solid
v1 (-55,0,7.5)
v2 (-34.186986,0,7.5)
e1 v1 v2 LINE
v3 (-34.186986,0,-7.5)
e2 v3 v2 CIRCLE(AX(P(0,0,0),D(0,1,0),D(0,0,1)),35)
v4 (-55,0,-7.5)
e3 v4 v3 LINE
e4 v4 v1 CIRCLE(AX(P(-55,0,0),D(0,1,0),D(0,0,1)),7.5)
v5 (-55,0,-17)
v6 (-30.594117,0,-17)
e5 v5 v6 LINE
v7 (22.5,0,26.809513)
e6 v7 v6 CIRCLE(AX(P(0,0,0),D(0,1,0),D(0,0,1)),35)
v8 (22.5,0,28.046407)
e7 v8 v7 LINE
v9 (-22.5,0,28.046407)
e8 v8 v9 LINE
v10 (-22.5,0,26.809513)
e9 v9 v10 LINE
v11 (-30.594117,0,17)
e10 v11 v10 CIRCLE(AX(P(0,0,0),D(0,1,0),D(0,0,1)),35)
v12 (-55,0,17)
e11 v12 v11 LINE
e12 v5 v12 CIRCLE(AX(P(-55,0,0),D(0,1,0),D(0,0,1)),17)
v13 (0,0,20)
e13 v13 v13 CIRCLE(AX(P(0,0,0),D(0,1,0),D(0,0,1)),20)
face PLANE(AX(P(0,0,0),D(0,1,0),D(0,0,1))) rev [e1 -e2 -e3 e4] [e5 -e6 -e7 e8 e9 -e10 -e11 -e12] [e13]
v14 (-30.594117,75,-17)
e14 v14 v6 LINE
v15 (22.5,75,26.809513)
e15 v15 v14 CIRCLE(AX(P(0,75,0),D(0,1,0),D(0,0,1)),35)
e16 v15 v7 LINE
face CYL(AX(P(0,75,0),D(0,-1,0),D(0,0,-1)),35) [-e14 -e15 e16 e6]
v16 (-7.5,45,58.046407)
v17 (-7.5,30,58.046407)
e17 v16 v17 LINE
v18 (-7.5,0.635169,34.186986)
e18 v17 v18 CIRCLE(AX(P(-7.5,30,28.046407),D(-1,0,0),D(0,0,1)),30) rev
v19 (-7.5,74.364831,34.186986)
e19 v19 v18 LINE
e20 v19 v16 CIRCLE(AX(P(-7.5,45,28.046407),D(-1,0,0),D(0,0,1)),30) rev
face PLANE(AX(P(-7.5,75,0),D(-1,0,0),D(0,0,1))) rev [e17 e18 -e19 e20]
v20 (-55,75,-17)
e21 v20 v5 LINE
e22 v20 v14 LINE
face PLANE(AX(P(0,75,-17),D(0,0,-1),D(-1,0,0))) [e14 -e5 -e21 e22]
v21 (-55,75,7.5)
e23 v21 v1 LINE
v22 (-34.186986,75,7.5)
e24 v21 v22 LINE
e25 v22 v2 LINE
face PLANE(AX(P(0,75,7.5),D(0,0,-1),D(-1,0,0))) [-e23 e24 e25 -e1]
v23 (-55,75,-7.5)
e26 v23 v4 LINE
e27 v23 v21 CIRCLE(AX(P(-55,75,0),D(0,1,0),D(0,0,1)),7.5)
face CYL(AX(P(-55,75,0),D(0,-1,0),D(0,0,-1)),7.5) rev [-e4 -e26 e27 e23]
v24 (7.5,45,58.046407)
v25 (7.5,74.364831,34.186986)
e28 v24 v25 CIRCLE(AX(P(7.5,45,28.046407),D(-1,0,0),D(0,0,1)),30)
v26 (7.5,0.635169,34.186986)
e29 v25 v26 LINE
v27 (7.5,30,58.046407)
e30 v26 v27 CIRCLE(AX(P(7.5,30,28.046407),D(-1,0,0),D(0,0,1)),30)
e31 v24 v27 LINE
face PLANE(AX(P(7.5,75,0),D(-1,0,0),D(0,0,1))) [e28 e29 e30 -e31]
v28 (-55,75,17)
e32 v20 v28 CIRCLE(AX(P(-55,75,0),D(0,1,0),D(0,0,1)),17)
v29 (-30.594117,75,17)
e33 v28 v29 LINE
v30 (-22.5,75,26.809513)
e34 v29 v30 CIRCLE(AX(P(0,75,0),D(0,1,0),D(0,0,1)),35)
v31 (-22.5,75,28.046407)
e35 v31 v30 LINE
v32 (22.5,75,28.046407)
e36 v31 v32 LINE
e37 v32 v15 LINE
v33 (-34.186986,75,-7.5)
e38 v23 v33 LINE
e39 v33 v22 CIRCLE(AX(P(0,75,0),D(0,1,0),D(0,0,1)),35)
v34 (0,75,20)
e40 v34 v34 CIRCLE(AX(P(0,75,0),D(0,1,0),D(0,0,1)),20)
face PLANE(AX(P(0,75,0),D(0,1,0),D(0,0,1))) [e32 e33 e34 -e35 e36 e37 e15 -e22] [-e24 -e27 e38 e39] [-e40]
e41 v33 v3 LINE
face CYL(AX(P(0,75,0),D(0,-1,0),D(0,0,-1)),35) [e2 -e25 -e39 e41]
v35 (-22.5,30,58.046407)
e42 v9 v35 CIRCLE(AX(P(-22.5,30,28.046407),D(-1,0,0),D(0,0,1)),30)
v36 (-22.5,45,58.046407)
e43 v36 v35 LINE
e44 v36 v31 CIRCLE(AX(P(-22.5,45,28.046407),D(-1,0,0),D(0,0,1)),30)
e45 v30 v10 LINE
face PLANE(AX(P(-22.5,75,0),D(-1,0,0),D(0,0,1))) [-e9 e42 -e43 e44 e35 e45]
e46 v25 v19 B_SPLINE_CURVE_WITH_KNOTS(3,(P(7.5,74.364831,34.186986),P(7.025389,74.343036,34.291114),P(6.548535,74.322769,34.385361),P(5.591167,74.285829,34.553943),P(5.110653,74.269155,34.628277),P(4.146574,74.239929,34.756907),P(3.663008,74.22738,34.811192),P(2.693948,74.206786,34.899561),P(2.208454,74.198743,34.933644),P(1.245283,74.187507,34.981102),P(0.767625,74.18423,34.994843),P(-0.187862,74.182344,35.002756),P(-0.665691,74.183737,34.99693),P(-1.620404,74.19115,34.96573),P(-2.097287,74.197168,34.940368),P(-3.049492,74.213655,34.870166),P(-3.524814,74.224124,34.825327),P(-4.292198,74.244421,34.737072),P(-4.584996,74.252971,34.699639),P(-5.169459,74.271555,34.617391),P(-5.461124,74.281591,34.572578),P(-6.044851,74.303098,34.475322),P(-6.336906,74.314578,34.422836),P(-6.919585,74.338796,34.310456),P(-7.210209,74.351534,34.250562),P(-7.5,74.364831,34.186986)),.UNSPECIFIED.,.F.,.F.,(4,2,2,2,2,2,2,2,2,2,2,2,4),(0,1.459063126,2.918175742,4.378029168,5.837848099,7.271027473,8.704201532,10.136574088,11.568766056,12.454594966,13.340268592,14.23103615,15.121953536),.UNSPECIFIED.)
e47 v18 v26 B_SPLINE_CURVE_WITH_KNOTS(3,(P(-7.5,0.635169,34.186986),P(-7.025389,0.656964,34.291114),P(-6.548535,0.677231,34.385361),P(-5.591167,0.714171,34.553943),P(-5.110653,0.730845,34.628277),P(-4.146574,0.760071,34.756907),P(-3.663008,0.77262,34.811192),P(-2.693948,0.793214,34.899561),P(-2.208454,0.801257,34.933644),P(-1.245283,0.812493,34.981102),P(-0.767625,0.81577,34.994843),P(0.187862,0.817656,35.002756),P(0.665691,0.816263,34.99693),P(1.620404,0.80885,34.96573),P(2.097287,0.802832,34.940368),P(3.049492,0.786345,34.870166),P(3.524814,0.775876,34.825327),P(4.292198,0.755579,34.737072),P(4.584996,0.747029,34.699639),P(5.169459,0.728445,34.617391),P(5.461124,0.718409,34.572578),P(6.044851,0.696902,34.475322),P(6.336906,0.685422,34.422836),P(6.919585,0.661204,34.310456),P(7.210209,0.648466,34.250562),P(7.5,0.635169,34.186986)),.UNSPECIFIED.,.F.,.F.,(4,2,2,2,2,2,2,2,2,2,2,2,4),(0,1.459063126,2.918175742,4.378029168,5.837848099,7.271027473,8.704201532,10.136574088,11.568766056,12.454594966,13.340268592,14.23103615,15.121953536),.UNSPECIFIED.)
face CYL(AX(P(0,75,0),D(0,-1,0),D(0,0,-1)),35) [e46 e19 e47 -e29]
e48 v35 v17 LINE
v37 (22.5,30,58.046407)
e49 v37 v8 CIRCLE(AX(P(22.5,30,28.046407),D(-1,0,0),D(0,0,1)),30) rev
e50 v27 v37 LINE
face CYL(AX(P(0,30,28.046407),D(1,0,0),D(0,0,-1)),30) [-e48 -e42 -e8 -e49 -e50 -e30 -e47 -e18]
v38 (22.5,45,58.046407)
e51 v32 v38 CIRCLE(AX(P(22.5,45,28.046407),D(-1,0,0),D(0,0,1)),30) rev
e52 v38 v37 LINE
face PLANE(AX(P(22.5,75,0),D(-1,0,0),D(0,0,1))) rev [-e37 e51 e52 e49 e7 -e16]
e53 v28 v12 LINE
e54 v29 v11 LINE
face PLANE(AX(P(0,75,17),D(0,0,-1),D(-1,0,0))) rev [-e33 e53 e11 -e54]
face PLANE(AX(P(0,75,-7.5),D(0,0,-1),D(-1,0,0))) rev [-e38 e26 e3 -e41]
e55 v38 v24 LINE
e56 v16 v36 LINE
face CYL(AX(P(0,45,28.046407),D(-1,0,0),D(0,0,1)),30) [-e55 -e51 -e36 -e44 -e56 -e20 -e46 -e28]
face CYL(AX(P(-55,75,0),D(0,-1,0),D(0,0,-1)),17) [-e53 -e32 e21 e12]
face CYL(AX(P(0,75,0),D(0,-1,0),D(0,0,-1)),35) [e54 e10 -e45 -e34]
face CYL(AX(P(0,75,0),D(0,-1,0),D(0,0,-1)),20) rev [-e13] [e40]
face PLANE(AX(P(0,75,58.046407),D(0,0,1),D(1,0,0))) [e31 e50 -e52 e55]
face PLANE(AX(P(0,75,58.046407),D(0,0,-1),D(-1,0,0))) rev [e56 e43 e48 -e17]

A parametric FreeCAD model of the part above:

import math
import FreeCAD as App
import Part
import Sketcher
from FreeCAD import Vector
Q = App.Units.Quantity


def edges_at(feature, points):
    """Names of the edges that pass closest to the given points."""
    edges = feature.Shape.Edges
    near = lambda p: min(range(len(edges)), key=lambda i: edges[i].distToShape(Part.Vertex(*p))[0])
    return sorted({f"Edge{near(p) + 1}" for p in points})

doc = App.newDocument("Part")
body = doc.addObject("PartDesign::Body", "Body")

# Sketch on XZ plane
sketch1 = body.newObject("Sketcher::SketchObject", "Sketch")
sketch1.AttachmentSupport = (doc.getObject("XZ_Plane"), [""])
sketch1.MapMode = "FlatFace"
sketch1.addGeometry([
    Part.LineSegment(Vector(-22, 27, 0), Vector(-22, 58, 0)),  # 0
    Part.LineSegment(Vector(-22, 58, 0), Vector(-8, 58, 0)),  # 1
    Part.LineSegment(Vector(-8, 58, 0), Vector(-8, 34, 0)),  # 2
    Part.ArcOfCircle(Part.Circle(Vector(0, 0, 0), Vector(0, 0, 1), 35), math.radians(78), math.radians(102)),  # 3
    Part.LineSegment(Vector(8, 34, 0), Vector(8, 58, 0)),  # 4
    Part.LineSegment(Vector(8, 58, 0), Vector(22, 58, 0)),  # 5
    Part.LineSegment(Vector(22, 58, 0), Vector(22, 27, 0)),  # 6
    Part.ArcOfCircle(Part.Circle(Vector(0, 0, 0), Vector(0, 0, 1), 35), math.radians(-151), math.radians(50)),  # 7
    Part.LineSegment(Vector(-31, -17, 0), Vector(-55, -17, 0)),  # 8
    Part.ArcOfCircle(Part.Circle(Vector(-55, 0, 0), Vector(0, 0, 1), 17), math.radians(90), math.radians(270)),  # 9
    Part.LineSegment(Vector(-55, 17, 0), Vector(-31, 17, 0)),  # 10
    Part.ArcOfCircle(Part.Circle(Vector(0, 0, 0), Vector(0, 0, 1), 35), math.radians(130), math.radians(151)),  # 11
    Part.ArcOfCircle(Part.Circle(Vector(0, 0, 0), Vector(0, 0, 1), 35), math.radians(168), math.radians(192)),  # 12
    Part.LineSegment(Vector(-34, 8, 0), Vector(-55, 8, 0)),  # 13
    Part.ArcOfCircle(Part.Circle(Vector(-55, 0, 0), Vector(0, 0, 1), 8), math.radians(90), math.radians(270)),  # 14
    Part.LineSegment(Vector(-55, -8, 0), Vector(-34, -8, 0)),  # 15
    Part.Circle(Vector(0, 0, 0), Vector(0, 0, 1), 20),  # 16
], False)
sketch1.addConstraint([
    Sketcher.Constraint("Coincident", 0, 2, 1, 1),
    Sketcher.Constraint("Coincident", 1, 2, 2, 1),
    Sketcher.Constraint("Coincident", 2, 2, 3, 2),
    Sketcher.Constraint("Coincident", 3, 1, 4, 1),
    Sketcher.Constraint("Coincident", 4, 2, 5, 1),
    Sketcher.Constraint("Coincident", 5, 2, 6, 1),
    Sketcher.Constraint("Coincident", 6, 2, 7, 2),
    Sketcher.Constraint("Coincident", 7, 1, 8, 1),
    Sketcher.Constraint("Tangent", 8, 2, 9, 2),
    Sketcher.Constraint("Tangent", 9, 1, 10, 1),
    Sketcher.Constraint("Coincident", 10, 2, 11, 2),
    Sketcher.Constraint("Coincident", 11, 1, 0, 1),
    Sketcher.Constraint("Coincident", 12, 1, 13, 1),
    Sketcher.Constraint("Tangent", 13, 2, 14, 1),
    Sketcher.Constraint("Tangent", 14, 2, 15, 1),
    Sketcher.Constraint("Coincident", 15, 2, 12, 2),
    Sketcher.Constraint("Vertical", 0),
    Sketcher.Constraint("Horizontal", 1),
    Sketcher.Constraint("Vertical", 2),
    Sketcher.Constraint("Vertical", 4),
    Sketcher.Constraint("Horizontal", 5),
    Sketcher.Constraint("Vertical", 6),
    Sketcher.Constraint("Horizontal", 8),
    Sketcher.Constraint("Horizontal", 10),
    Sketcher.Constraint("Horizontal", 13),
    Sketcher.Constraint("Horizontal", 15),
    Sketcher.Constraint("Coincident", 3, 3, -1, 1),
    Sketcher.Constraint("Coincident", 7, 3, -1, 1),
    Sketcher.Constraint("Coincident", 11, 3, -1, 1),
    Sketcher.Constraint("Coincident", 12, 3, -1, 1),
    Sketcher.Constraint("Coincident", 16, 3, -1, 1),
    Sketcher.Constraint("Coincident", 14, 3, 9, 3),
    Sketcher.Constraint("Equal", 3, 7),
    Sketcher.Constraint("Equal", 7, 11),
    Sketcher.Constraint("Equal", 11, 12),
    Sketcher.Constraint("Symmetric", 1, 2, 4, 2, -2),
    Sketcher.Constraint("PointOnObject", 9, 3, -1),
    Sketcher.Constraint("Horizontal", 6, 2, 11, 1),
    Sketcher.Constraint("Diameter", 16, Q("40 mm")),
    Sketcher.Constraint("Radius", 3, Q("35 mm")),
    Sketcher.Constraint("Radius", 9, Q("17 mm")),
    Sketcher.Constraint("Radius", 14, Q("7.5 mm")),
    Sketcher.Constraint("DistanceX", 1, 1, 1, 2, Q("15 mm")),
    Sketcher.Constraint("DistanceX", 9, 3, -1, 1, Q("55 mm")),
    Sketcher.Constraint("DistanceX", 2, 2, 3, 1, Q("15 mm")),
    Sketcher.Constraint("DistanceY", 2, 2, 2, 1, Q("23.859421 mm")),
])
pad1 = body.newObject("PartDesign::Pad", "Pad")
pad1.Profile = sketch1
pad1.Length = 75
pad1.Reversed = True
doc.recompute()

fillet = body.newObject("PartDesign::Fillet", "Fillet")
fillet.Base = (pad1, edges_at(pad1, [(-15, 0, 58.046), (-15, 75, 58.046)]))
fillet.Radius = 30

doc.recompute()
